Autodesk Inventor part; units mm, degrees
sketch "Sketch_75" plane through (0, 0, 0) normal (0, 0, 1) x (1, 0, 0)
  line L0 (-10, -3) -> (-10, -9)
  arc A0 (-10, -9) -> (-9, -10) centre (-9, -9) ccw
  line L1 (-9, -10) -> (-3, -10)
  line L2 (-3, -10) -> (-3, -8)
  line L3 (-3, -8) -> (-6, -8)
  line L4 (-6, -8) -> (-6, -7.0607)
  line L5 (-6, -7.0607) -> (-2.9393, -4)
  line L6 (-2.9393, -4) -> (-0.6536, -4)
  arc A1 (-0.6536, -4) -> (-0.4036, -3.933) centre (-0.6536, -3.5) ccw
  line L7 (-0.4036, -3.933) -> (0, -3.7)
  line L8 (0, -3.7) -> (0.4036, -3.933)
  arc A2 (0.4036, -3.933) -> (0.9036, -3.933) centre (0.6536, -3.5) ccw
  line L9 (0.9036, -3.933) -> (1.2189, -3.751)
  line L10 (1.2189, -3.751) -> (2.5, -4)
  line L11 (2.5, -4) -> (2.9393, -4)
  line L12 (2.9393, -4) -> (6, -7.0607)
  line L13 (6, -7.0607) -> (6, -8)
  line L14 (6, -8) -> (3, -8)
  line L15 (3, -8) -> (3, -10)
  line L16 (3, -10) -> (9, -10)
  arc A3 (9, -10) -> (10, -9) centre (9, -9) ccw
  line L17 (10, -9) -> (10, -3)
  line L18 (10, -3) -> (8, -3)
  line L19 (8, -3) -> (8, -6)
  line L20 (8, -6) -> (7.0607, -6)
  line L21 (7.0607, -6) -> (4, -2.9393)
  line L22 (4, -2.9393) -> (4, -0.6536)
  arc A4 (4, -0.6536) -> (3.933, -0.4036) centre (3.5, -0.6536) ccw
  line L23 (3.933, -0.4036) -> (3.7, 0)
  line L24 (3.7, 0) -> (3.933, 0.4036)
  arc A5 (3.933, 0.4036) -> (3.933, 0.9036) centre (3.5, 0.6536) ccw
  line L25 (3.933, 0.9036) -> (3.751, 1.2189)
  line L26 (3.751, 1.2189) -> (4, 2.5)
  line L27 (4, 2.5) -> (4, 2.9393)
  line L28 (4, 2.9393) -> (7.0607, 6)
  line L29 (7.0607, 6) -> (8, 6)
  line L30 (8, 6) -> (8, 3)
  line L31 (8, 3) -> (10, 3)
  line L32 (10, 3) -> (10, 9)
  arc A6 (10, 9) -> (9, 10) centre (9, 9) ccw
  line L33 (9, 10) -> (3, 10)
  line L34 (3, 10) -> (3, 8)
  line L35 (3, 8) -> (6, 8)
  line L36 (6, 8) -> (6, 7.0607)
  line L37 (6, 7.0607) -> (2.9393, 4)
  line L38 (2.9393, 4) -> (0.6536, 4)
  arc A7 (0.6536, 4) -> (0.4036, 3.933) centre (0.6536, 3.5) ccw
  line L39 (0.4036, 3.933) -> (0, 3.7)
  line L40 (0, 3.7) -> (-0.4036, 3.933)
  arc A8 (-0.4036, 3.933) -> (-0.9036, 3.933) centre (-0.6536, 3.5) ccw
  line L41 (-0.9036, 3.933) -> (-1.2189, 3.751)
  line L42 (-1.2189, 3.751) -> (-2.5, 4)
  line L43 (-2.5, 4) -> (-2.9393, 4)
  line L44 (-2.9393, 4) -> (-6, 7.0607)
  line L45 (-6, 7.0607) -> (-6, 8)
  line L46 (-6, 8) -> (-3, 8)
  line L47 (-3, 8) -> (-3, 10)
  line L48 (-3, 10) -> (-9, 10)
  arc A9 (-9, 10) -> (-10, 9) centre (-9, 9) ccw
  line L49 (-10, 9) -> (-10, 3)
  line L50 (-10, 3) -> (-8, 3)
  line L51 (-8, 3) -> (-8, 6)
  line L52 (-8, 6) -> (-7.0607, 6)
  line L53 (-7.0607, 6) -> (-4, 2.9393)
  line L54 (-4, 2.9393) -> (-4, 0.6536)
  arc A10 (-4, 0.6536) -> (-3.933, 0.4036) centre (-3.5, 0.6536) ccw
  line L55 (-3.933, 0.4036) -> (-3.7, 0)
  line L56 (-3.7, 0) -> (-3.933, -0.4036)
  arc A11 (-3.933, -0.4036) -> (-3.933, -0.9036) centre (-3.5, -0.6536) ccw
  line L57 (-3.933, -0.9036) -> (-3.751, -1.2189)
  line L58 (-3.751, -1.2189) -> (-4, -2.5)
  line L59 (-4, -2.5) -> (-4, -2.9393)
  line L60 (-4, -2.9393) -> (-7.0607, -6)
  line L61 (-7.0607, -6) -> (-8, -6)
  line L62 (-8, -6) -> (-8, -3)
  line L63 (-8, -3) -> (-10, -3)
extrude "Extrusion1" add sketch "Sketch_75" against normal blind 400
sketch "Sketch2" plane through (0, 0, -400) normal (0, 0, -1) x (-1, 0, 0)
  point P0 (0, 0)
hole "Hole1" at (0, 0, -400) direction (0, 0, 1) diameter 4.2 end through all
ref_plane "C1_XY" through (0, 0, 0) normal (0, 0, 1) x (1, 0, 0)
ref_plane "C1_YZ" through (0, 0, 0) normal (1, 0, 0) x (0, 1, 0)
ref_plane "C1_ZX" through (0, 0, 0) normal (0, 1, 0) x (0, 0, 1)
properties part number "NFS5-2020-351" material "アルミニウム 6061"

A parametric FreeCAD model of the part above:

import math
import FreeCAD as App
import Part
import Sketcher
Q = App.Units.Quantity

doc = App.newDocument("Part")
params = doc.addObject("Spreadsheet::Sheet", "Params")
for row, (alias, value) in enumerate([
    ("sketch1_radius", "1 mm"),
    ("sketch1_radius2", "0.5 mm"),
    ("sketch1_width", "2 mm"),
    ("sketch1_width2", "6 mm"),
    ("sketch1_width3", "3 mm"),
    ("pad1_length", "400 mm"),
    ("sketch2_diameter", "4.2 mm"),
    ("hole_diameter", "4.2 mm"),
], start=1):
    params.set(f"A{row}", alias)
    params.set(f"B{row}", "=" + value)
    params.setAlias(f"B{row}", alias)

body = doc.addObject("PartDesign::Body", "Body")

# Sketch on XY plane
sketch1 = doc.addObject("Sketcher::SketchObject", "Sketch")
body.addObject(sketch1)
sketch1.AttachmentSupport = (doc.XY_Plane, [""])
sketch1.MapMode = "FlatFace"
sketch1.addGeometry([
    Part.LineSegment(App.Vector(-8, -3, 0), App.Vector(-10, -3, 0)),  # 0
    Part.LineSegment(App.Vector(-10, -3, 0), App.Vector(-10, -9, 0)),  # 1
    Part.ArcOfCircle(Part.Circle(App.Vector(-9, -9, 0), App.Vector(0, 0, 1), 1), math.radians(180), math.radians(270)),  # 2
    Part.LineSegment(App.Vector(-9, -10, 0), App.Vector(-3, -10, 0)),  # 3
    Part.LineSegment(App.Vector(-3, -10, 0), App.Vector(-3, -8, 0)),  # 4
    Part.LineSegment(App.Vector(-3, -8, 0), App.Vector(-6, -8, 0)),  # 5
    Part.LineSegment(App.Vector(-6, -8, 0), App.Vector(-6, -7.06, 0)),  # 6
    Part.LineSegment(App.Vector(-6, -7.06, 0), App.Vector(-2.94, -4, 0)),  # 7
    Part.LineSegment(App.Vector(-2.94, -4, 0), App.Vector(-0.65, -4, 0)),  # 8
    Part.ArcOfCircle(Part.Circle(App.Vector(-0.65, -3.5, 0), App.Vector(0, 0, 1), 0.5), math.radians(-90), math.radians(-60)),  # 9
    Part.LineSegment(App.Vector(-0.4, -3.93, 0), App.Vector(0, -3.7, 0)),  # 10
    Part.LineSegment(App.Vector(0, -3.7, 0), App.Vector(0.4, -3.93, 0)),  # 11
    Part.ArcOfCircle(Part.Circle(App.Vector(0.65, -3.5, 0), App.Vector(0, 0, 1), 0.5), math.radians(-120), math.radians(-60)),  # 12
    Part.LineSegment(App.Vector(0.9, -3.93, 0), App.Vector(1.22, -3.75, 0)),  # 13
    Part.LineSegment(App.Vector(1.22, -3.75, 0), App.Vector(2.5, -4, 0)),  # 14
    Part.LineSegment(App.Vector(2.5, -4, 0), App.Vector(2.94, -4, 0)),  # 15
    Part.LineSegment(App.Vector(2.94, -4, 0), App.Vector(6, -7.06, 0)),  # 16
    Part.LineSegment(App.Vector(6, -7.06, 0), App.Vector(6, -8, 0)),  # 17
    Part.LineSegment(App.Vector(6, -8, 0), App.Vector(3, -8, 0)),  # 18
    Part.LineSegment(App.Vector(3, -8, 0), App.Vector(3, -10, 0)),  # 19
    Part.LineSegment(App.Vector(3, -10, 0), App.Vector(9, -10, 0)),  # 20
    Part.ArcOfCircle(Part.Circle(App.Vector(9, -9, 0), App.Vector(0, 0, 1), 1), math.radians(-90), math.radians(0)),  # 21
    Part.LineSegment(App.Vector(10, -9, 0), App.Vector(10, -3, 0)),  # 22
    Part.LineSegment(App.Vector(10, -3, 0), App.Vector(8, -3, 0)),  # 23
    Part.LineSegment(App.Vector(8, -3, 0), App.Vector(8, -6, 0)),  # 24
    Part.LineSegment(App.Vector(8, -6, 0), App.Vector(7.06, -6, 0)),  # 25
    Part.LineSegment(App.Vector(7.06, -6, 0), App.Vector(4, -2.94, 0)),  # 26
    Part.LineSegment(App.Vector(4, -2.94, 0), App.Vector(4, -0.65, 0)),  # 27
    Part.ArcOfCircle(Part.Circle(App.Vector(3.5, -0.65, 0), App.Vector(0, 0, 1), 0.5), math.radians(0), math.radians(30)),  # 28
    Part.LineSegment(App.Vector(3.93, -0.4, 0), App.Vector(3.7, 0, 0)),  # 29
    Part.LineSegment(App.Vector(3.7, 0, 0), App.Vector(3.93, 0.4, 0)),  # 30
    Part.ArcOfCircle(Part.Circle(App.Vector(3.5, 0.65, 0), App.Vector(0, 0, 1), 0.5), math.radians(-30), math.radians(30)),  # 31
    Part.LineSegment(App.Vector(3.93, 0.9, 0), App.Vector(3.75, 1.22, 0)),  # 32
    Part.LineSegment(App.Vector(3.75, 1.22, 0), App.Vector(4, 2.5, 0)),  # 33
    Part.LineSegment(App.Vector(4, 2.5, 0), App.Vector(4, 2.94, 0)),  # 34
    Part.LineSegment(App.Vector(4, 2.94, 0), App.Vector(7.06, 6, 0)),  # 35
    Part.LineSegment(App.Vector(7.06, 6, 0), App.Vector(8, 6, 0)),  # 36
    Part.LineSegment(App.Vector(8, 6, 0), App.Vector(8, 3, 0)),  # 37
    Part.LineSegment(App.Vector(8, 3, 0), App.Vector(10, 3, 0)),  # 38
    Part.LineSegment(App.Vector(10, 3, 0), App.Vector(10, 9, 0)),  # 39
    Part.ArcOfCircle(Part.Circle(App.Vector(9, 9, 0), App.Vector(0, 0, 1), 1), math.radians(0), math.radians(90)),  # 40
    Part.LineSegment(App.Vector(9, 10, 0), App.Vector(3, 10, 0)),  # 41
    Part.LineSegment(App.Vector(3, 10, 0), App.Vector(3, 8, 0)),  # 42
    Part.LineSegment(App.Vector(3, 8, 0), App.Vector(6, 8, 0)),  # 43
    Part.LineSegment(App.Vector(6, 8, 0), App.Vector(6, 7.06, 0)),  # 44
    Part.LineSegment(App.Vector(6, 7.06, 0), App.Vector(2.94, 4, 0)),  # 45
    Part.LineSegment(App.Vector(2.94, 4, 0), App.Vector(0.65, 4, 0)),  # 46
    Part.ArcOfCircle(Part.Circle(App.Vector(0.65, 3.5, 0), App.Vector(0, 0, 1), 0.5), math.radians(90), math.radians(120)),  # 47
    Part.LineSegment(App.Vector(0.4, 3.93, 0), App.Vector(0, 3.7, 0)),  # 48
    Part.LineSegment(App.Vector(0, 3.7, 0), App.Vector(-0.4, 3.93, 0)),  # 49
    Part.ArcOfCircle(Part.Circle(App.Vector(-0.65, 3.5, 0), App.Vector(0, 0, 1), 0.5), math.radians(60), math.radians(120)),  # 50
    Part.LineSegment(App.Vector(-0.9, 3.93, 0), App.Vector(-1.22, 3.75, 0)),  # 51
    Part.LineSegment(App.Vector(-1.22, 3.75, 0), App.Vector(-2.5, 4, 0)),  # 52
    Part.LineSegment(App.Vector(-2.5, 4, 0), App.Vector(-2.94, 4, 0)),  # 53
    Part.LineSegment(App.Vector(-2.94, 4, 0), App.Vector(-6, 7.06, 0)),  # 54
    Part.LineSegment(App.Vector(-6, 7.06, 0), App.Vector(-6, 8, 0)),  # 55
    Part.LineSegment(App.Vector(-6, 8, 0), App.Vector(-3, 8, 0)),  # 56
    Part.LineSegment(App.Vector(-3, 8, 0), App.Vector(-3, 10, 0)),  # 57
    Part.LineSegment(App.Vector(-3, 10, 0), App.Vector(-9, 10, 0)),  # 58
    Part.ArcOfCircle(Part.Circle(App.Vector(-9, 9, 0), App.Vector(0, 0, 1), 1), math.radians(90), math.radians(180)),  # 59
    Part.LineSegment(App.Vector(-10, 9, 0), App.Vector(-10, 3, 0)),  # 60
    Part.LineSegment(App.Vector(-10, 3, 0), App.Vector(-8, 3, 0)),  # 61
    Part.LineSegment(App.Vector(-8, 3, 0), App.Vector(-8, 6, 0)),  # 62
    Part.LineSegment(App.Vector(-8, 6, 0), App.Vector(-7.06, 6, 0)),  # 63
    Part.LineSegment(App.Vector(-7.06, 6, 0), App.Vector(-4, 2.94, 0)),  # 64
    Part.LineSegment(App.Vector(-4, 2.94, 0), App.Vector(-4, 0.65, 0)),  # 65
    Part.ArcOfCircle(Part.Circle(App.Vector(-3.5, 0.65, 0), App.Vector(0, 0, 1), 0.5), math.radians(180), math.radians(210)),  # 66
    Part.LineSegment(App.Vector(-3.93, 0.4, 0), App.Vector(-3.7, 0, 0)),  # 67
    Part.LineSegment(App.Vector(-3.7, 0, 0), App.Vector(-3.93, -0.4, 0)),  # 68
    Part.ArcOfCircle(Part.Circle(App.Vector(-3.5, -0.65, 0), App.Vector(0, 0, 1), 0.5), math.radians(150), math.radians(210)),  # 69
    Part.LineSegment(App.Vector(-3.93, -0.9, 0), App.Vector(-3.75, -1.22, 0)),  # 70
    Part.LineSegment(App.Vector(-3.75, -1.22, 0), App.Vector(-4, -2.5, 0)),  # 71
    Part.LineSegment(App.Vector(-4, -2.5, 0), App.Vector(-4, -2.94, 0)),  # 72
    Part.LineSegment(App.Vector(-4, -2.94, 0), App.Vector(-7.06, -6, 0)),  # 73
    Part.LineSegment(App.Vector(-7.06, -6, 0), App.Vector(-8, -6, 0)),  # 74
    Part.LineSegment(App.Vector(-8, -6, 0), App.Vector(-8, -3, 0)),  # 75
], False)
sketch1.addConstraint([
    Sketcher.Constraint("Coincident", 0, 2, 1, 1),
    Sketcher.Constraint("Tangent", 1, 2, 2, 1),
    Sketcher.Constraint("Tangent", 2, 2, 3, 1),
    Sketcher.Constraint("Coincident", 3, 2, 4, 1),
    Sketcher.Constraint("Coincident", 4, 2, 5, 1),
    Sketcher.Constraint("Coincident", 5, 2, 6, 1),
    Sketcher.Constraint("Coincident", 6, 2, 7, 1),
    Sketcher.Constraint("Coincident", 7, 2, 8, 1),
    Sketcher.Constraint("Tangent", 8, 2, 9, 1),
    Sketcher.Constraint("Tangent", 9, 2, 10, 1),
    Sketcher.Constraint("Coincident", 10, 2, 11, 1),
    Sketcher.Constraint("Tangent", 11, 2, 12, 1),
    Sketcher.Constraint("Tangent", 12, 2, 13, 1),
    Sketcher.Constraint("Coincident", 13, 2, 14, 1),
    Sketcher.Constraint("Coincident", 14, 2, 15, 1),
    Sketcher.Constraint("Coincident", 15, 2, 16, 1),
    Sketcher.Constraint("Coincident", 16, 2, 17, 1),
    Sketcher.Constraint("Coincident", 17, 2, 18, 1),
    Sketcher.Constraint("Coincident", 18, 2, 19, 1),
    Sketcher.Constraint("Coincident", 19, 2, 20, 1),
    Sketcher.Constraint("Tangent", 20, 2, 21, 1),
    Sketcher.Constraint("Tangent", 21, 2, 22, 1),
    Sketcher.Constraint("Coincident", 22, 2, 23, 1),
    Sketcher.Constraint("Coincident", 23, 2, 24, 1),
    Sketcher.Constraint("Coincident", 24, 2, 25, 1),
    Sketcher.Constraint("Coincident", 25, 2, 26, 1),
    Sketcher.Constraint("Coincident", 26, 2, 27, 1),
    Sketcher.Constraint("Tangent", 27, 2, 28, 1),
    Sketcher.Constraint("Tangent", 28, 2, 29, 1),
    Sketcher.Constraint("Coincident", 29, 2, 30, 1),
    Sketcher.Constraint("Tangent", 30, 2, 31, 1),
    Sketcher.Constraint("Tangent", 31, 2, 32, 1),
    Sketcher.Constraint("Coincident", 32, 2, 33, 1),
    Sketcher.Constraint("Coincident", 33, 2, 34, 1),
    Sketcher.Constraint("Coincident", 34, 2, 35, 1),
    Sketcher.Constraint("Coincident", 35, 2, 36, 1),
    Sketcher.Constraint("Coincident", 36, 2, 37, 1),
    Sketcher.Constraint("Coincident", 37, 2, 38, 1),
    Sketcher.Constraint("Coincident", 38, 2, 39, 1),
    Sketcher.Constraint("Tangent", 39, 2, 40, 1),
    Sketcher.Constraint("Tangent", 40, 2, 41, 1),
    Sketcher.Constraint("Coincident", 41, 2, 42, 1),
    Sketcher.Constraint("Coincident", 42, 2, 43, 1),
    Sketcher.Constraint("Coincident", 43, 2, 44, 1),
    Sketcher.Constraint("Coincident", 44, 2, 45, 1),
    Sketcher.Constraint("Coincident", 45, 2, 46, 1),
    Sketcher.Constraint("Tangent", 46, 2, 47, 1),
    Sketcher.Constraint("Tangent", 47, 2, 48, 1),
    Sketcher.Constraint("Coincident", 48, 2, 49, 1),
    Sketcher.Constraint("Tangent", 49, 2, 50, 1),
    Sketcher.Constraint("Tangent", 50, 2, 51, 1),
    Sketcher.Constraint("Coincident", 51, 2, 52, 1),
    Sketcher.Constraint("Coincident", 52, 2, 53, 1),
    Sketcher.Constraint("Coincident", 53, 2, 54, 1),
    Sketcher.Constraint("Coincident", 54, 2, 55, 1),
    Sketcher.Constraint("Coincident", 55, 2, 56, 1),
    Sketcher.Constraint("Coincident", 56, 2, 57, 1),
    Sketcher.Constraint("Coincident", 57, 2, 58, 1),
    Sketcher.Constraint("Tangent", 58, 2, 59, 1),
    Sketcher.Constraint("Tangent", 59, 2, 60, 1),
    Sketcher.Constraint("Coincident", 60, 2, 61, 1),
    Sketcher.Constraint("Coincident", 61, 2, 62, 1),
    Sketcher.Constraint("Coincident", 62, 2, 63, 1),
    Sketcher.Constraint("Coincident", 63, 2, 64, 1),
    Sketcher.Constraint("Coincident", 64, 2, 65, 1),
    Sketcher.Constraint("Tangent", 65, 2, 66, 1),
    Sketcher.Constraint("Tangent", 66, 2, 67, 1),
    Sketcher.Constraint("Coincident", 67, 2, 68, 1),
    Sketcher.Constraint("Tangent", 68, 2, 69, 1),
    Sketcher.Constraint("Tangent", 69, 2, 70, 1),
    Sketcher.Constraint("Coincident", 70, 2, 71, 1),
    Sketcher.Constraint("Coincident", 71, 2, 72, 1),
    Sketcher.Constraint("Coincident", 72, 2, 73, 1),
    Sketcher.Constraint("Coincident", 73, 2, 74, 1),
    Sketcher.Constraint("Coincident", 74, 2, 75, 1),
    Sketcher.Constraint("Coincident", 75, 2, 0, 1),
    Sketcher.Constraint("Horizontal", 0),
    Sketcher.Constraint("Vertical", 1),
    Sketcher.Constraint("Horizontal", 3),
    Sketcher.Constraint("Vertical", 4),
    Sketcher.Constraint("Horizontal", 5),
    Sketcher.Constraint("Vertical", 6),
    Sketcher.Constraint("Horizontal", 8),
    Sketcher.Constraint("Horizontal", 15),
    Sketcher.Constraint("Vertical", 17),
    Sketcher.Constraint("Horizontal", 18),
    Sketcher.Constraint("Vertical", 19),
    Sketcher.Constraint("Horizontal", 20),
    Sketcher.Constraint("Vertical", 22),
    Sketcher.Constraint("Horizontal", 23),
    Sketcher.Constraint("Vertical", 24),
    Sketcher.Constraint("Horizontal", 25),
    Sketcher.Constraint("Vertical", 27),
    Sketcher.Constraint("Vertical", 34),
    Sketcher.Constraint("Horizontal", 36),
    Sketcher.Constraint("Vertical", 37),
    Sketcher.Constraint("Horizontal", 38),
    Sketcher.Constraint("Vertical", 39),
    Sketcher.Constraint("Horizontal", 41),
    Sketcher.Constraint("Vertical", 42),
    Sketcher.Constraint("Horizontal", 43),
    Sketcher.Constraint("Vertical", 44),
    Sketcher.Constraint("Horizontal", 46),
    Sketcher.Constraint("Horizontal", 53),
    Sketcher.Constraint("Vertical", 55),
    Sketcher.Constraint("Horizontal", 56),
    Sketcher.Constraint("Vertical", 57),
    Sketcher.Constraint("Horizontal", 58),
    Sketcher.Constraint("Vertical", 60),
    Sketcher.Constraint("Horizontal", 61),
    Sketcher.Constraint("Vertical", 62),
    Sketcher.Constraint("Horizontal", 63),
    Sketcher.Constraint("Vertical", 65),
    Sketcher.Constraint("Vertical", 72),
    Sketcher.Constraint("Horizontal", 74),
    Sketcher.Constraint("Vertical", 75),
    Sketcher.Constraint("Equal", 9, 12),
    Sketcher.Constraint("Equal", 2, 21),
    Sketcher.Constraint("Equal", 12, 28),
    Sketcher.Constraint("Equal", 28, 31),
    Sketcher.Constraint("Equal", 21, 40),
    Sketcher.Constraint("Equal", 31, 47),
    Sketcher.Constraint("Equal", 47, 50),
    Sketcher.Constraint("Equal", 40, 59),
    Sketcher.Constraint("Equal", 50, 66),
    Sketcher.Constraint("Equal", 66, 69),
    Sketcher.Constraint("Symmetric", 2, 3, 40, 3, -1, 1),
    Sketcher.Constraint("Symmetric", 9, 3, 47, 3, -1, 1),
    Sketcher.Constraint("Symmetric", 12, 3, 50, 3, -1, 1),
    Sketcher.Constraint("Symmetric", 21, 3, 59, 3, -1, 1),
    Sketcher.Constraint("Symmetric", 28, 3, 66, 3, -1, 1),
    Sketcher.Constraint("Symmetric", 31, 3, 69, 3, -1, 1),
    Sketcher.Constraint("Symmetric", 4, 2, 42, 2, -1, 1),
    Sketcher.Constraint("Symmetric", 6, 2, 44, 2, -1, 1),
    Sketcher.Constraint("Symmetric", 10, 2, 48, 2, -1, 1),
    Sketcher.Constraint("Symmetric", 13, 2, 51, 2, -1, 1),
    Sketcher.Constraint("Symmetric", 14, 2, 52, 2, -1, 1),
    Sketcher.Constraint("Symmetric", 16, 2, 54, 2, -1, 1),
    Sketcher.Constraint("Symmetric", 18, 2, 56, 2, -1, 1),
    Sketcher.Constraint("Symmetric", 23, 2, 61, 2, -1, 1),
    Sketcher.Constraint("Symmetric", 25, 2, 63, 2, -1, 1),
    Sketcher.Constraint("Symmetric", 29, 2, 67, 2, -1, 1),
    Sketcher.Constraint("Symmetric", 32, 2, 70, 2, -1, 1),
    Sketcher.Constraint("Symmetric", 33, 2, 71, 2, -1, 1),
    Sketcher.Constraint("Symmetric", 35, 2, 73, 2, -1, 1),
    Sketcher.Constraint("Symmetric", 37, 2, 75, 2, -1, 1),
    Sketcher.Constraint("Symmetric", 9, 3, 12, 3, -2),
    Sketcher.Constraint("Symmetric", 2, 3, 21, 3, -2),
    Sketcher.Constraint("Symmetric", 31, 3, 66, 3, -2),
    Sketcher.Constraint("Symmetric", 7, 2, 15, 2, -2),
    Sketcher.Constraint("Symmetric", 6, 2, 16, 2, -2),
    Sketcher.Constraint("Symmetric", 4, 2, 18, 2, -2),
    Sketcher.Constraint("Symmetric", 37, 2, 61, 2, -2),
    Sketcher.Constraint("Symmetric", 35, 2, 63, 2, -2),
    Sketcher.Constraint("Symmetric", 34, 2, 64, 2, -2),
    Sketcher.Constraint("PointOnObject", 10, 2, -2),
    Sketcher.Constraint("PointOnObject", 29, 2, -1),
    Sketcher.Constraint("Parallel", 10, 13),
    Sketcher.Constraint("Perpendicular", 7, 16),
    Sketcher.Constraint("Parallel", 16, 26),
    Sketcher.Constraint("Perpendicular", 13, 29),
    Sketcher.Constraint("Parallel", 29, 32),
    Sketcher.Constraint("Perpendicular", 14, 33),
    Sketcher.Constraint("Perpendicular", 26, 35),
    Sketcher.Constraint("Parallel", 35, 45),
    Sketcher.Constraint("Perpendicular", 45, 54),
    Sketcher.Constraint("Perpendicular", 64, 73),
    Sketcher.Constraint("Equal", 58, 1),
    Sketcher.Constraint("Equal", 61, 4),
    Sketcher.Constraint("Equal", 74, 6),
    Sketcher.Constraint("Equal", 56, 24),
    Sketcher.Constraint("Equal", 46, 27),
    Sketcher.Constraint("Equal", 53, 34),
    Sketcher.Constraint("Equal", 16, 26),
    Sketcher.Constraint("Equal", 11, 29),
    Sketcher.Constraint("Radius", 2, 1.0),
    Sketcher.Constraint("Radius", 9, 0.5),
    Sketcher.Constraint("DistanceX", 0, 2, 0, 1, 2.0),
    Sketcher.Constraint("DistanceX", 3, 1, 3, 2, 6.0),
    Sketcher.Constraint("DistanceX", 5, 2, 5, 1, 3.0),
    Sketcher.Constraint("Angle", 14, Q("-10.999 deg")),
    Sketcher.Constraint("DistanceX", 2, 3, -1, 1, 9.0),
    Sketcher.Constraint("DistanceY", 7, 2, -1, 1, 4.0),
    Sketcher.Constraint("DistanceY", 10, 2, -1, 1, 3.7),
    Sketcher.Constraint("DistanceX", -1, 1, 14, 2, 2.5),
    Sketcher.Constraint("Distance", 10, 0.466),
    Sketcher.Constraint("DistanceX", 8, 1, 8, 2, 2.2857),
])
sketch1.setExpression("Constraints[175]", "Params.sketch1_radius")
sketch1.setExpression("Constraints[176]", "Params.sketch1_radius2")
sketch1.setExpression("Constraints[177]", "Params.sketch1_width")
sketch1.setExpression("Constraints[178]", "Params.sketch1_width2")
sketch1.setExpression("Constraints[179]", "Params.sketch1_width3")
pad1 = doc.addObject("PartDesign::Pad", "Pad")
body.addObject(pad1)
pad1.Profile = sketch1
pad1.setExpression("Length", "Params.pad1_length")
pad1.Reversed = True

# Sketch on XY plane
sketch2 = doc.addObject("Sketcher::SketchObject", "Sketch001")
body.addObject(sketch2)
sketch2.AttachmentSupport = (doc.XY_Plane, [""])
sketch2.MapMode = "FlatFace"
sketch2.AttachmentOffset = App.Placement(App.Vector(0, 0, -400), App.Rotation())
sketch2.addGeometry(Part.Circle(App.Vector(0, 0, 0), App.Vector(0, 0, 1), 2.1), False)
sketch2.addConstraint([
    Sketcher.Constraint("Coincident", 0, 3, -1, 1),
    Sketcher.Constraint("Diameter", 0, 4.2),
])
sketch2.setExpression("Constraints[1]", "Params.sketch2_diameter")
doc.recompute()
hole = doc.addObject("PartDesign::Hole", "Hole")
body.addObject(hole)
hole.Profile = sketch2
hole.ThreadType = "None"
hole.setExpression("Diameter", "Params.hole_diameter")
hole.DepthType = "ThroughAll"
hole.Reversed = True

doc.recompute()
